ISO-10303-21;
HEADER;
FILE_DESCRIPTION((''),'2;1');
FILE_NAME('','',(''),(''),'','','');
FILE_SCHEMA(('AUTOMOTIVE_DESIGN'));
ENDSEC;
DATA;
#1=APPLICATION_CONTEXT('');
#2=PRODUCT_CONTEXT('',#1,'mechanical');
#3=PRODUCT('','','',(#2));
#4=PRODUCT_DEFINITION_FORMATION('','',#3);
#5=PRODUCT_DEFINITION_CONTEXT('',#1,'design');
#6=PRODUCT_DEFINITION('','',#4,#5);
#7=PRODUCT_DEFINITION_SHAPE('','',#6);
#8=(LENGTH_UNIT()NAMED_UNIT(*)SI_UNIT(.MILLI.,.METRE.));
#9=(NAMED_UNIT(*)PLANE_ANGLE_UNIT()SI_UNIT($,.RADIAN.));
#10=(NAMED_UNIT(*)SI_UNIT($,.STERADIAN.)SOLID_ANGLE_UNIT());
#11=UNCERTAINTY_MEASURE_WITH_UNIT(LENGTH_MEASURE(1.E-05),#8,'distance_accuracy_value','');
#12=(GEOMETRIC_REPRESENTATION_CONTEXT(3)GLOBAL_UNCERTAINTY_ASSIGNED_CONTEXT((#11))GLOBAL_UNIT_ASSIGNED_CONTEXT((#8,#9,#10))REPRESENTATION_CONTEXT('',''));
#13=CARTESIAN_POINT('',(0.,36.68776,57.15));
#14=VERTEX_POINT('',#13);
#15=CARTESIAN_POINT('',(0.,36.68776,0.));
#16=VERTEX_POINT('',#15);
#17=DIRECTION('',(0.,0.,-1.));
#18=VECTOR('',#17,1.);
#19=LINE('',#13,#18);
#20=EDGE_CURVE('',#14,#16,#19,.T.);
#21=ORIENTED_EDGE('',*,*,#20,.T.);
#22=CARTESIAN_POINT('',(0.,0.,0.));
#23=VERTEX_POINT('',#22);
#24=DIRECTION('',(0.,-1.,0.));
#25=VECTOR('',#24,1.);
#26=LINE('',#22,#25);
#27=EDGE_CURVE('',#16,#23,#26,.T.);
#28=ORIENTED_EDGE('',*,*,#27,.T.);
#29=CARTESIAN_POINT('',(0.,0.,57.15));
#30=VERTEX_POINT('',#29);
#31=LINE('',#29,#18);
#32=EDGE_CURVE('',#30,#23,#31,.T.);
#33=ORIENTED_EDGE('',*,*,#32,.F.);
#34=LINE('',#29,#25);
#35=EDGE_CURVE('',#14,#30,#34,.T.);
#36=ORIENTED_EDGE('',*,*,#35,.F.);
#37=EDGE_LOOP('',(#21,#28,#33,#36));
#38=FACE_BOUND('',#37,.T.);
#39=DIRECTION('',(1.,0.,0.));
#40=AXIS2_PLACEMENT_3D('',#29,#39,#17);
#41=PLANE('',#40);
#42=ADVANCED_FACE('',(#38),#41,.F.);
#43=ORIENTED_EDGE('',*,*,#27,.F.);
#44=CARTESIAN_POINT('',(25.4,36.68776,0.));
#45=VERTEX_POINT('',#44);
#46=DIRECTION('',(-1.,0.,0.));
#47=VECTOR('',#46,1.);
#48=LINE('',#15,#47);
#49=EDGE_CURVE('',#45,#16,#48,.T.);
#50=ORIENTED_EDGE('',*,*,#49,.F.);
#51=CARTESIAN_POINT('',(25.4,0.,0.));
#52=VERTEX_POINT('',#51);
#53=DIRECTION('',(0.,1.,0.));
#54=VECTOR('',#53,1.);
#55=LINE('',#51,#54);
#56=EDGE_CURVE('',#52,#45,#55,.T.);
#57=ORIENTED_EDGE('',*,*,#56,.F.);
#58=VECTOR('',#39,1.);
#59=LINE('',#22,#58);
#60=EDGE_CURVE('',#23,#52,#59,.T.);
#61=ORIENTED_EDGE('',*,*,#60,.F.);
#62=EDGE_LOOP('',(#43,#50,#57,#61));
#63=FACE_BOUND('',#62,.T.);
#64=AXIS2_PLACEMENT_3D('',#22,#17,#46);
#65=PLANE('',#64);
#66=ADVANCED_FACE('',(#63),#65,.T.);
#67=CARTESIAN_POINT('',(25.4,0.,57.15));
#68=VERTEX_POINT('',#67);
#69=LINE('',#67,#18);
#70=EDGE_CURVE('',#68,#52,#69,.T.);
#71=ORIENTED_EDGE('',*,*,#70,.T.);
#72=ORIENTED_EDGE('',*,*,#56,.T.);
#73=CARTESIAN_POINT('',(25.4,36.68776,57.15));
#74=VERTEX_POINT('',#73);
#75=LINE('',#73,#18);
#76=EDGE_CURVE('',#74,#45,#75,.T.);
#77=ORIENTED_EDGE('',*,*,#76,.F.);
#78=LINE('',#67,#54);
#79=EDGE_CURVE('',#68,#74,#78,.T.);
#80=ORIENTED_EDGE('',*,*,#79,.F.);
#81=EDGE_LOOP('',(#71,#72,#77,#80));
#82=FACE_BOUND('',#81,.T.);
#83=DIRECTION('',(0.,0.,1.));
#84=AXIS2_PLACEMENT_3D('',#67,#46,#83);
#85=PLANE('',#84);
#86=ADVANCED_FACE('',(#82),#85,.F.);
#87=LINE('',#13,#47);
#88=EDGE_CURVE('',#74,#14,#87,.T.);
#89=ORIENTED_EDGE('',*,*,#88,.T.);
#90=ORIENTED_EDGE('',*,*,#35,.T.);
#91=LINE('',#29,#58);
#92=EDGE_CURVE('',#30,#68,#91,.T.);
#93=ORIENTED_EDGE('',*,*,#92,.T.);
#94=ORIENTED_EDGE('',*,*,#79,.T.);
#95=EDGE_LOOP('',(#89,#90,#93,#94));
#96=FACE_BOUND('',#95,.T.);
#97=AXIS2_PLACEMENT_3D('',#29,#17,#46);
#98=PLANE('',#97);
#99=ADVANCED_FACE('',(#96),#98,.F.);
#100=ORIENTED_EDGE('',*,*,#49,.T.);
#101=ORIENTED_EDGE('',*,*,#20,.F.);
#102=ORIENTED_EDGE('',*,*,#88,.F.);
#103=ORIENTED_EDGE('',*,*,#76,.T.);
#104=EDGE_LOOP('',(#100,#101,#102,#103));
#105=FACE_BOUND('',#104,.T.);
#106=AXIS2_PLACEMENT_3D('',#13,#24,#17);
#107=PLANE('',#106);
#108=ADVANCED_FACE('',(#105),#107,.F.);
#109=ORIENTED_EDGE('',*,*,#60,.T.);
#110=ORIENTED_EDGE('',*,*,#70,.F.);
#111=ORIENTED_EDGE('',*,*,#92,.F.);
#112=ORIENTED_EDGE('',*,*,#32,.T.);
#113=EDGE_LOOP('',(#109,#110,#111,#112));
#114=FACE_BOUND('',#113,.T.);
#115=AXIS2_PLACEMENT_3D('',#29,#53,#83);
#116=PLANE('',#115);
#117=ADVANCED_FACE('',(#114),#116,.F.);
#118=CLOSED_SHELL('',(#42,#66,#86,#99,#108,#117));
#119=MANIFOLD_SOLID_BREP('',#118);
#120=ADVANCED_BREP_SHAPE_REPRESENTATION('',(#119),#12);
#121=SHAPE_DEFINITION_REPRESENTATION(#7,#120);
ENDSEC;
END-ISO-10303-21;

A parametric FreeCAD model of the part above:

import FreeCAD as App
import Part
import Sketcher
from FreeCAD import Vector
Q = App.Units.Quantity

doc = App.newDocument("Part")
body = doc.addObject("PartDesign::Body", "Body")

sketch1 = body.newObject("Sketcher::SketchObject", "Sketch")
sketch1.AttachmentSupport = (doc.getObject("XY_Plane"), [""])
sketch1.MapMode = "FlatFace"
sketch1.addGeometry([
    Part.LineSegment(Vector(0, 37, 0), Vector(0, 0, 0)),
    Part.LineSegment(Vector(0, 0, 0), Vector(25, 0, 0)),
    Part.LineSegment(Vector(25, 0, 0), Vector(25, 37, 0)),
    Part.LineSegment(Vector(25, 37, 0), Vector(0, 37, 0)),
], False)
sketch1.addConstraint([
    Sketcher.Constraint("Coincident", 0, 2, 1, 1),
    Sketcher.Constraint("Coincident", 1, 2, 2, 1),
    Sketcher.Constraint("Coincident", 2, 2, 3, 1),
    Sketcher.Constraint("Coincident", 3, 2, 0, 1),
    Sketcher.Constraint("Vertical", 0),
    Sketcher.Constraint("Horizontal", 1),
    Sketcher.Constraint("Vertical", 2),
    Sketcher.Constraint("Horizontal", 3),
    Sketcher.Constraint("Coincident", 0, 2, -1, 1),
    Sketcher.Constraint("DistanceX", 1, 1, 1, 2, Q("1 in")),
    Sketcher.Constraint("DistanceY", 0, 2, 0, 1, Q("1.4444 in")),
])
pad1 = body.newObject("PartDesign::Pad", "Pad")
pad1.Profile = sketch1
pad1.Length = Q("2.25 in")

doc.recompute()
